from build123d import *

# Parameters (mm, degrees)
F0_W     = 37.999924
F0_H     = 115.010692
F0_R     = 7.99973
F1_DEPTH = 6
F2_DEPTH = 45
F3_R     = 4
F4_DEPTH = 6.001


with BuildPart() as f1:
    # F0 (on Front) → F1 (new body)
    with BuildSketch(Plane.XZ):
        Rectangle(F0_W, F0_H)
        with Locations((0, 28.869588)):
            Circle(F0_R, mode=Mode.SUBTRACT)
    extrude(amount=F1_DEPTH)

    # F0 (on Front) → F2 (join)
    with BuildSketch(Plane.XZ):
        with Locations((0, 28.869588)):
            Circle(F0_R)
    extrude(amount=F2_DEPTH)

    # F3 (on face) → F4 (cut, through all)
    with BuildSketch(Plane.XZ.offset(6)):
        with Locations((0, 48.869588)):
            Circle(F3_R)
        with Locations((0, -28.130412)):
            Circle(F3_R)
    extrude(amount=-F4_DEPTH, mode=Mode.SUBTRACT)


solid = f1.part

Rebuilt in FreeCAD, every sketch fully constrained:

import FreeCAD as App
import Part
import Sketcher

V = App.Vector
Q = App.Units.Quantity


def add_polygon(sketch, points):
    """Adds a closed chain of lines whose ends are joined by coincident constraints."""
    first, n = sketch.GeometryCount, len(points)
    for a, b in zip(points, points[1:] + points[:1]):
        sketch.addGeometry(Part.LineSegment(App.Vector(*a, 0), App.Vector(*b, 0)), False)
    for i in range(n):
        sketch.addConstraint(Sketcher.Constraint("Coincident", first + i, 2, first + (i + 1) % n, 1))

doc = App.newDocument("Part")
body = doc.addObject("PartDesign::Body", "Body")

sketch1 = body.newObject("Sketcher::SketchObject", "Sketch")
sketch1.AttachmentSupport = (doc.getObject("XZ_Plane"), [""])
sketch1.MapMode = "FlatFace"
add_polygon(sketch1, [(-19, 58), (-19, -58), (19, -58), (19, 58)])
sketch1.addGeometry(Part.Circle(V(0, 29, 0), V(0, 0, 1), 8), False)
sketch1.addConstraint(Sketcher.Constraint("Vertical", 0))
sketch1.addConstraint(Sketcher.Constraint("Horizontal", 1))
sketch1.addConstraint(Sketcher.Constraint("Vertical", 2))
sketch1.addConstraint(Sketcher.Constraint("Horizontal", 3))
sketch1.addConstraint(Sketcher.Constraint("Symmetric", 0, 2, 2, 2, -1, 1))
sketch1.addConstraint(Sketcher.Constraint("PointOnObject", 4, 3, -2))
sketch1.addConstraint(Sketcher.Constraint("Diameter", 4, Q("15.99946 mm")))
sketch1.addConstraint(Sketcher.Constraint("DistanceX", 1, 1, 1, 2, Q("37.999924 mm")))
sketch1.addConstraint(Sketcher.Constraint("DistanceY", 0, 2, 0, 1, Q("115.010692 mm")))
sketch1.addConstraint(Sketcher.Constraint("DistanceY", -1, 1, 4, 3, Q("28.869588 mm")))
pad1 = body.newObject("PartDesign::Pad", "Pad")
pad1.Profile = sketch1
pad1.Length = 6

sketch2 = body.newObject("Sketcher::SketchObject", "Sketch001")
sketch2.AttachmentSupport = (doc.getObject("XZ_Plane"), [""])
sketch2.MapMode = "FlatFace"
sketch2.addGeometry(Part.Circle(V(0, 29, 0), V(0, 0, 1), 8), False)
sketch2.addConstraint(Sketcher.Constraint("PointOnObject", 0, 3, -2))
sketch2.addConstraint(Sketcher.Constraint("Diameter", 0, Q("15.99946 mm")))
sketch2.addConstraint(Sketcher.Constraint("DistanceY", -1, 1, 0, 3, Q("28.869588 mm")))
pad2 = body.newObject("PartDesign::Pad", "Pad001")
pad2.Profile = sketch2
pad2.Length = 45

sketch3 = body.newObject("Sketcher::SketchObject", "Sketch002")
sketch3.AttachmentSupport = (doc.getObject("XZ_Plane"), [""])
sketch3.MapMode = "FlatFace"
sketch3.AttachmentOffset = App.Placement(V(0, 0, 6), App.Rotation())
sketch3.addGeometry(Part.Circle(V(0, 48.9, 0), V(0, 0, 1), 4), False)
sketch3.addGeometry(Part.Circle(V(0, -28.1, 0), V(0, 0, 1), 4), False)
sketch3.addConstraint(Sketcher.Constraint("Equal", 0, 1))
sketch3.addConstraint(Sketcher.Constraint("PointOnObject", 0, 3, -2))
sketch3.addConstraint(Sketcher.Constraint("PointOnObject", 1, 3, -2))
sketch3.addConstraint(Sketcher.Constraint("Diameter", 0, Q("8 mm")))
sketch3.addConstraint(Sketcher.Constraint("DistanceY", 1, 3, 0, 3, Q("77 mm")))
sketch3.addConstraint(Sketcher.Constraint("DistanceY", 1, 3, -1, 1, Q("28.130412 mm")))
pocket1 = body.newObject("PartDesign::Pocket", "Pocket")
pocket1.Profile = sketch3
pocket1.Type = "ThroughAll"

doc.recompute()
